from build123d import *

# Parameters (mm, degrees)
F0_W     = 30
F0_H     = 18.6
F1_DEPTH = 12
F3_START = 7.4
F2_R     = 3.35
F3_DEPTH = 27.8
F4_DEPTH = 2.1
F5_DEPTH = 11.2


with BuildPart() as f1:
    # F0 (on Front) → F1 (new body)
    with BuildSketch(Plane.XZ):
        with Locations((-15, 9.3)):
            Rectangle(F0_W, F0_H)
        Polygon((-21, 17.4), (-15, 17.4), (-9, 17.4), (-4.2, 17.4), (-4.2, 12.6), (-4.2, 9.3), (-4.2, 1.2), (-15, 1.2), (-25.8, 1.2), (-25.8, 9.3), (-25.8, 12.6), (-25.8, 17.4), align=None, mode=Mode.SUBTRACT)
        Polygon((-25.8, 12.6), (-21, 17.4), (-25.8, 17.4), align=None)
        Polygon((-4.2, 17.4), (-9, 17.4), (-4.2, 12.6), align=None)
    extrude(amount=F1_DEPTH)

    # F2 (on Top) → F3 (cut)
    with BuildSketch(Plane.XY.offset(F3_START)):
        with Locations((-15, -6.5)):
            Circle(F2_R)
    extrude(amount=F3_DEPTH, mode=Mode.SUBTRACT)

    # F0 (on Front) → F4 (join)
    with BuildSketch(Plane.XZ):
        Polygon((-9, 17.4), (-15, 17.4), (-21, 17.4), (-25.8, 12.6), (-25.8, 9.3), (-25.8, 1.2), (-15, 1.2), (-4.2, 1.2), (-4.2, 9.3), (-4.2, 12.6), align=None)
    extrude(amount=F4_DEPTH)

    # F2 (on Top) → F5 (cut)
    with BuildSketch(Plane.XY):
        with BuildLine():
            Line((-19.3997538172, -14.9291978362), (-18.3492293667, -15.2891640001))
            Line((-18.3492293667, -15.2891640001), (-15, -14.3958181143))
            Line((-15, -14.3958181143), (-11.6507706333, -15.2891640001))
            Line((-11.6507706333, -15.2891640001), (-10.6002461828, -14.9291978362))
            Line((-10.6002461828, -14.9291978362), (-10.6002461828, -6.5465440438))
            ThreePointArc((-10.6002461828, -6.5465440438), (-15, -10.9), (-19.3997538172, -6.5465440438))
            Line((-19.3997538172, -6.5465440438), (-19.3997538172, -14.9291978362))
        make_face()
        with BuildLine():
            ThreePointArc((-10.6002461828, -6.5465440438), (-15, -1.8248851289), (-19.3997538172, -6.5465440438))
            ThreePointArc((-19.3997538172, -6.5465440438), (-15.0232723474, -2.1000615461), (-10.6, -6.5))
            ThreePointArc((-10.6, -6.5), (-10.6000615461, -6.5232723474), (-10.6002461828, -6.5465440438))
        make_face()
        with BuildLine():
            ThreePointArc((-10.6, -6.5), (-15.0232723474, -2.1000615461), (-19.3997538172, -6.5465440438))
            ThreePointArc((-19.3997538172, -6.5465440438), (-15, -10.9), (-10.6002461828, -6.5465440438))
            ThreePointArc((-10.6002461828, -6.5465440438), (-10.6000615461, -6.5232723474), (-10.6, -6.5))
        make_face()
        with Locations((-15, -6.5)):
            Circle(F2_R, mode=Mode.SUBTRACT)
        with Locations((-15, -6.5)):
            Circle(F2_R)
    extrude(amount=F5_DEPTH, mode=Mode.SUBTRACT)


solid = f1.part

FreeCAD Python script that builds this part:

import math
import FreeCAD as App
import Part
import Sketcher
Q = App.Units.Quantity

doc = App.newDocument("Part")
body = doc.addObject("PartDesign::Body", "Body")

sketch1 = doc.addObject("Sketcher::SketchObject", "Sketch")
body.addObject(sketch1)
sketch1.AttachmentSupport = (doc.XZ_Plane, [""])
sketch1.MapMode = "FlatFace"
sketch1.addGeometry([
    Part.LineSegment(App.Vector(-30, 19, 0), App.Vector(-30, 0, 0)),
    Part.LineSegment(App.Vector(-30, 0, 0), App.Vector(0, 0, 0)),
    Part.LineSegment(App.Vector(0, 0, 0), App.Vector(0, 19, 0)),
    Part.LineSegment(App.Vector(0, 19, 0), App.Vector(-30, 19, 0)),
    Part.LineSegment(App.Vector(-21, 17, 0), App.Vector(-9, 17, 0)),
    Part.LineSegment(App.Vector(-9, 17, 0), App.Vector(-4, 13, 0)),
    Part.LineSegment(App.Vector(-4, 13, 0), App.Vector(-4, 1, 0)),
    Part.LineSegment(App.Vector(-4, 1, 0), App.Vector(-26, 1, 0)),
    Part.LineSegment(App.Vector(-26, 1, 0), App.Vector(-26, 13, 0)),
    Part.LineSegment(App.Vector(-26, 13, 0), App.Vector(-21, 17, 0)),
], False)
sketch1.addConstraint([
    Sketcher.Constraint("Coincident", 0, 2, 1, 1),
    Sketcher.Constraint("Coincident", 1, 2, 2, 1),
    Sketcher.Constraint("Coincident", 2, 2, 3, 1),
    Sketcher.Constraint("Coincident", 3, 2, 0, 1),
    Sketcher.Constraint("Coincident", 4, 2, 5, 1),
    Sketcher.Constraint("Coincident", 5, 2, 6, 1),
    Sketcher.Constraint("Coincident", 6, 2, 7, 1),
    Sketcher.Constraint("Coincident", 7, 2, 8, 1),
    Sketcher.Constraint("Coincident", 8, 2, 9, 1),
    Sketcher.Constraint("Coincident", 9, 2, 4, 1),
    Sketcher.Constraint("Vertical", 0),
    Sketcher.Constraint("Horizontal", 1),
    Sketcher.Constraint("Vertical", 2),
    Sketcher.Constraint("Horizontal", 3),
    Sketcher.Constraint("Horizontal", 4),
    Sketcher.Constraint("Vertical", 6),
    Sketcher.Constraint("Horizontal", 7),
    Sketcher.Constraint("Vertical", 8),
    Sketcher.Constraint("Coincident", 1, 2, -1, 1),
    Sketcher.Constraint("Perpendicular", 5, 9),
    Sketcher.Constraint("Horizontal", 5, 2, 8, 2),
    Sketcher.Constraint("Equal", 5, 9),
    Sketcher.Constraint("DistanceX", 1, 1, 1, 2, Q("30 mm")),
    Sketcher.Constraint("DistanceX", 4, 1, 4, 2, Q("12 mm")),
    Sketcher.Constraint("DistanceX", 7, 2, 7, 1, Q("21.6 mm")),
    Sketcher.Constraint("DistanceY", 0, 2, 0, 1, Q("18.6 mm")),
    Sketcher.Constraint("DistanceY", 6, 2, 6, 1, Q("11.4 mm")),
    Sketcher.Constraint("DistanceX", 4, 2, -1, 1, Q("9 mm")),
    Sketcher.Constraint("DistanceY", 5, 2, 2, 2, Q("6 mm")),
])
pad1 = doc.addObject("PartDesign::Pad", "Pad")
body.addObject(pad1)
pad1.Profile = sketch1
pad1.Length = 12

sketch2 = doc.addObject("Sketcher::SketchObject", "Sketch001")
body.addObject(sketch2)
sketch2.AttachmentSupport = (doc.XY_Plane, [""])
sketch2.MapMode = "FlatFace"
sketch2.AttachmentOffset = App.Placement(App.Vector(0, 0, 7.4), App.Rotation())
sketch2.addGeometry(Part.Circle(App.Vector(-15, -6.5, 0), App.Vector(0, 0, 1), 3.4), False)
sketch2.addConstraint([
    Sketcher.Constraint("Diameter", 0, Q("6.7 mm")),
    Sketcher.Constraint("DistanceX", 0, 3, -1, 1, Q("15 mm")),
    Sketcher.Constraint("DistanceY", 0, 3, -1, 1, Q("6.5 mm")),
])
pocket1 = doc.addObject("PartDesign::Pocket", "Pocket")
body.addObject(pocket1)
pocket1.Profile = sketch2
pocket1.Length = 27.8
pocket1.Reversed = True

sketch3 = doc.addObject("Sketcher::SketchObject", "Sketch002")
body.addObject(sketch3)
sketch3.AttachmentSupport = (doc.XZ_Plane, [""])
sketch3.MapMode = "FlatFace"
sketch3.addGeometry([
    Part.LineSegment(App.Vector(-9, 17, 0), App.Vector(-21, 17, 0)),
    Part.LineSegment(App.Vector(-21, 17, 0), App.Vector(-26, 13, 0)),
    Part.LineSegment(App.Vector(-26, 13, 0), App.Vector(-26, 1, 0)),
    Part.LineSegment(App.Vector(-26, 1, 0), App.Vector(-4, 1, 0)),
    Part.LineSegment(App.Vector(-4, 1, 0), App.Vector(-4, 13, 0)),
    Part.LineSegment(App.Vector(-4, 13, 0), App.Vector(-9, 17, 0)),
], False)
sketch3.addConstraint([
    Sketcher.Constraint("Coincident", 0, 2, 1, 1),
    Sketcher.Constraint("Coincident", 1, 2, 2, 1),
    Sketcher.Constraint("Coincident", 2, 2, 3, 1),
    Sketcher.Constraint("Coincident", 3, 2, 4, 1),
    Sketcher.Constraint("Coincident", 4, 2, 5, 1),
    Sketcher.Constraint("Coincident", 5, 2, 0, 1),
    Sketcher.Constraint("Horizontal", 0),
    Sketcher.Constraint("Vertical", 2),
    Sketcher.Constraint("Horizontal", 3),
    Sketcher.Constraint("Vertical", 4),
    Sketcher.Constraint("Perpendicular", 1, 5),
    Sketcher.Constraint("Horizontal", 1, 2, 4, 2),
    Sketcher.Constraint("Equal", 1, 5),
    Sketcher.Constraint("DistanceX", 0, 2, 0, 1, Q("12 mm")),
    Sketcher.Constraint("DistanceX", 3, 1, 3, 2, Q("21.6 mm")),
    Sketcher.Constraint("DistanceY", 2, 2, 2, 1, Q("11.4 mm")),
    Sketcher.Constraint("DistanceX", 0, 2, -1, 1, Q("21 mm")),
    Sketcher.Constraint("DistanceY", -1, 1, 0, 2, Q("17.4 mm")),
])
pad2 = doc.addObject("PartDesign::Pad", "Pad001")
body.addObject(pad2)
pad2.Profile = sketch3
pad2.Length = 2.1

sketch4 = doc.addObject("Sketcher::SketchObject", "Sketch003")
body.addObject(sketch4)
sketch4.AttachmentSupport = (doc.XY_Plane, [""])
sketch4.MapMode = "FlatFace"
sketch4.addGeometry([
    Part.LineSegment(App.Vector(-19.4, -14.9, 0), App.Vector(-18.3, -15.3, 0)),
    Part.LineSegment(App.Vector(-18.3, -15.3, 0), App.Vector(-15, -14.4, 0)),
    Part.LineSegment(App.Vector(-15, -14.4, 0), App.Vector(-11.7, -15.3, 0)),
    Part.LineSegment(App.Vector(-11.7, -15.3, 0), App.Vector(-10.6, -14.9, 0)),
    Part.LineSegment(App.Vector(-10.6, -14.9, 0), App.Vector(-10.6, -6.5, 0)),
    Part.ArcOfCircle(Part.Circle(App.Vector(-15, -6.2, 0), App.Vector(0, 0, 1), 4.4), math.radians(-4), math.radians(184)),
    Part.LineSegment(App.Vector(-19.4, -6.5, 0), App.Vector(-19.4, -14.9, 0)),
], False)
sketch4.addConstraint([
    Sketcher.Constraint("Coincident", 0, 2, 1, 1),
    Sketcher.Constraint("Coincident", 1, 2, 2, 1),
    Sketcher.Constraint("Coincident", 2, 2, 3, 1),
    Sketcher.Constraint("Coincident", 3, 2, 4, 1),
    Sketcher.Constraint("Coincident", 4, 2, 5, 1),
    Sketcher.Constraint("Coincident", 5, 2, 6, 1),
    Sketcher.Constraint("Coincident", 6, 2, 0, 1),
    Sketcher.Constraint("Vertical", 4),
    Sketcher.Constraint("Vertical", 6),
    Sketcher.Constraint("Horizontal", 0, 2, 2, 2),
    Sketcher.Constraint("Horizontal", 4, 2, 5, 2),
    Sketcher.Constraint("Horizontal", 3, 2, 6, 2),
    Sketcher.Constraint("Vertical", 5, 3, 1, 2),
    Sketcher.Constraint("Equal", 1, 2),
    Sketcher.Constraint("DistanceX", 5, 3, -1, 1, Q("15 mm")),
    Sketcher.Constraint("Radius", 5, Q("4.410727 mm")),
    Sketcher.Constraint("DistanceY", 4, 1, 4, 2, Q("8.382654 mm")),
    Sketcher.Constraint("DistanceX", 0, 2, -1, 1, Q("18.349229 mm")),
    Sketcher.Constraint("DistanceY", 1, 2, -1, 1, Q("14.395818 mm")),
    Sketcher.Constraint("DistanceY", 0, 2, 5, 3, Q("9.053552 mm")),
    Sketcher.Constraint("DistanceY", 3, 2, 1, 2, Q("0.53338 mm")),
    Sketcher.Constraint("DistanceY", 4, 2, 5, 3, Q("0.310932 mm")),
])
pocket2 = doc.addObject("PartDesign::Pocket", "Pocket001")
body.addObject(pocket2)
pocket2.Profile = sketch4
pocket2.Length = 11.2
pocket2.Reversed = True

doc.recompute()
